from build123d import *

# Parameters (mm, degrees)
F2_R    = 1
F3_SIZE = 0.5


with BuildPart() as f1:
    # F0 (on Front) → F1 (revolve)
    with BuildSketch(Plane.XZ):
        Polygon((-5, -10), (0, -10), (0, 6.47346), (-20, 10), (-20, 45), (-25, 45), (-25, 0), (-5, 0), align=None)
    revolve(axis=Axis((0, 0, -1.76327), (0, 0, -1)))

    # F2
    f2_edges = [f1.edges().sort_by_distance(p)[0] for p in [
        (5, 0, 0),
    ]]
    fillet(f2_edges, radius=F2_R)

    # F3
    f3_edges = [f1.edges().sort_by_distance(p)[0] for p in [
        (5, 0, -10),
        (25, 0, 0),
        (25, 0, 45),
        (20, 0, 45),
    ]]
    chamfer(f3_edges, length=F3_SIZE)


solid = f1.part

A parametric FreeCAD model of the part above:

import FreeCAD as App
import Part
import Sketcher
from FreeCAD import Vector
Q = App.Units.Quantity


def edges_at(feature, points):
    """Names of the edges that pass closest to the given points."""
    edges = feature.Shape.Edges
    near = lambda p: min(range(len(edges)), key=lambda i: edges[i].distToShape(Part.Vertex(*p))[0])
    return sorted({f"Edge{near(p) + 1}" for p in points})

doc = App.newDocument("Part")
params = doc.addObject("Spreadsheet::Sheet", "Params")
for row, (alias, value) in enumerate([
    ("sketch1_width", "5 mm"),
    ("sketch1_width2", "20 mm"),
    ("sketch1_height", "35 mm"),
    ("sketch1_height2", "45 mm"),
    ("sketch1_height3", "10 mm"),
    ("revolution_angle", "360 deg"),
    ("fillet_radius", "1 mm"),
    ("chamfer_size", "0.5 mm"),
], start=1):
    params.set(f"A{row}", alias)
    params.set(f"B{row}", "=" + value)
    params.setAlias(f"B{row}", alias)

body = doc.addObject("PartDesign::Body", "Body")

# Sketch on XZ plane
sketch1 = body.newObject("Sketcher::SketchObject", "Sketch")
sketch1.AttachmentSupport = (doc.getObject("XZ_Plane"), [""])
sketch1.MapMode = "FlatFace"
sketch1.addGeometry(Part.LineSegment(Vector(-5, -10, 0), Vector(0, -10, 0)), False)
sketch1.addGeometry(Part.LineSegment(Vector(0, -10, 0), Vector(0, 6, 0)), False)
sketch1.addGeometry(Part.LineSegment(Vector(0, 6, 0), Vector(-20, 10, 0)), False)
sketch1.addGeometry(Part.LineSegment(Vector(-20, 10, 0), Vector(-20, 45, 0)), False)
sketch1.addGeometry(Part.LineSegment(Vector(-20, 45, 0), Vector(-25, 45, 0)), False)
sketch1.addGeometry(Part.LineSegment(Vector(-25, 45, 0), Vector(-25, 0, 0)), False)
sketch1.addGeometry(Part.LineSegment(Vector(-25, 0, 0), Vector(-5, 0, 0)), False)
sketch1.addGeometry(Part.LineSegment(Vector(-5, 0, 0), Vector(-5, -10, 0)), False)
sketch1.addConstraint(Sketcher.Constraint("Coincident", 0, 2, 1, 1))
sketch1.addConstraint(Sketcher.Constraint("Coincident", 1, 2, 2, 1))
sketch1.addConstraint(Sketcher.Constraint("Coincident", 2, 2, 3, 1))
sketch1.addConstraint(Sketcher.Constraint("Coincident", 3, 2, 4, 1))
sketch1.addConstraint(Sketcher.Constraint("Coincident", 4, 2, 5, 1))
sketch1.addConstraint(Sketcher.Constraint("Coincident", 5, 2, 6, 1))
sketch1.addConstraint(Sketcher.Constraint("Coincident", 6, 2, 7, 1))
sketch1.addConstraint(Sketcher.Constraint("Coincident", 7, 2, 0, 1))
sketch1.addConstraint(Sketcher.Constraint("Horizontal", 0))
sketch1.addConstraint(Sketcher.Constraint("Vertical", 1))
sketch1.addConstraint(Sketcher.Constraint("Vertical", 3))
sketch1.addConstraint(Sketcher.Constraint("Horizontal", 4))
sketch1.addConstraint(Sketcher.Constraint("Vertical", 5))
sketch1.addConstraint(Sketcher.Constraint("Horizontal", 6))
sketch1.addConstraint(Sketcher.Constraint("Vertical", 7))
sketch1.addConstraint(Sketcher.Constraint("PointOnObject", 0, 2, -2))
sketch1.addConstraint(Sketcher.Constraint("PointOnObject", 5, 2, -1))
sketch1.addConstraint(Sketcher.Constraint("Equal", 0, 4))
sketch1.addConstraint(Sketcher.Constraint("DistanceX", 0, 1, 0, 2, 5.0))
sketch1.addConstraint(Sketcher.Constraint("DistanceX", 6, 1, 6, 2, 20.0))
sketch1.addConstraint(Sketcher.Constraint("DistanceY", 3, 1, 3, 2, 35.0))
sketch1.addConstraint(Sketcher.Constraint("DistanceY", 5, 2, 5, 1, 45.0))
sketch1.addConstraint(Sketcher.Constraint("DistanceY", 7, 2, 7, 1, 10.0))
sketch1.addConstraint(Sketcher.Constraint("Angle", 2, Q("169.999999 deg")))
sketch1.setExpression("Constraints[18]", "Params.sketch1_width")
sketch1.setExpression("Constraints[19]", "Params.sketch1_width2")
sketch1.setExpression("Constraints[20]", "Params.sketch1_height")
sketch1.setExpression("Constraints[21]", "Params.sketch1_height2")
sketch1.setExpression("Constraints[22]", "Params.sketch1_height3")
revolution = body.newObject("PartDesign::Revolution", "Revolution")
revolution.Profile = sketch1
revolution.ReferenceAxis = (sketch1, ["V_Axis"])
revolution.setExpression("Angle", "Params.revolution_angle")
doc.recompute()

fillet = body.newObject("PartDesign::Fillet", "Fillet")
fillet.Base = (revolution, edges_at(revolution, [(5, 0, 0)]))
fillet.setExpression("Radius", "Params.fillet_radius")
doc.recompute()

chamfer = body.newObject("PartDesign::Chamfer", "Chamfer")
chamfer.Base = (fillet, edges_at(fillet, [
    (5, 0, -10),
    (25, 0, 0),
    (25, 0, 45),
    (20, 0, 45),
]))
chamfer.setExpression("Size", "Params.chamfer_size")

doc.recompute()
